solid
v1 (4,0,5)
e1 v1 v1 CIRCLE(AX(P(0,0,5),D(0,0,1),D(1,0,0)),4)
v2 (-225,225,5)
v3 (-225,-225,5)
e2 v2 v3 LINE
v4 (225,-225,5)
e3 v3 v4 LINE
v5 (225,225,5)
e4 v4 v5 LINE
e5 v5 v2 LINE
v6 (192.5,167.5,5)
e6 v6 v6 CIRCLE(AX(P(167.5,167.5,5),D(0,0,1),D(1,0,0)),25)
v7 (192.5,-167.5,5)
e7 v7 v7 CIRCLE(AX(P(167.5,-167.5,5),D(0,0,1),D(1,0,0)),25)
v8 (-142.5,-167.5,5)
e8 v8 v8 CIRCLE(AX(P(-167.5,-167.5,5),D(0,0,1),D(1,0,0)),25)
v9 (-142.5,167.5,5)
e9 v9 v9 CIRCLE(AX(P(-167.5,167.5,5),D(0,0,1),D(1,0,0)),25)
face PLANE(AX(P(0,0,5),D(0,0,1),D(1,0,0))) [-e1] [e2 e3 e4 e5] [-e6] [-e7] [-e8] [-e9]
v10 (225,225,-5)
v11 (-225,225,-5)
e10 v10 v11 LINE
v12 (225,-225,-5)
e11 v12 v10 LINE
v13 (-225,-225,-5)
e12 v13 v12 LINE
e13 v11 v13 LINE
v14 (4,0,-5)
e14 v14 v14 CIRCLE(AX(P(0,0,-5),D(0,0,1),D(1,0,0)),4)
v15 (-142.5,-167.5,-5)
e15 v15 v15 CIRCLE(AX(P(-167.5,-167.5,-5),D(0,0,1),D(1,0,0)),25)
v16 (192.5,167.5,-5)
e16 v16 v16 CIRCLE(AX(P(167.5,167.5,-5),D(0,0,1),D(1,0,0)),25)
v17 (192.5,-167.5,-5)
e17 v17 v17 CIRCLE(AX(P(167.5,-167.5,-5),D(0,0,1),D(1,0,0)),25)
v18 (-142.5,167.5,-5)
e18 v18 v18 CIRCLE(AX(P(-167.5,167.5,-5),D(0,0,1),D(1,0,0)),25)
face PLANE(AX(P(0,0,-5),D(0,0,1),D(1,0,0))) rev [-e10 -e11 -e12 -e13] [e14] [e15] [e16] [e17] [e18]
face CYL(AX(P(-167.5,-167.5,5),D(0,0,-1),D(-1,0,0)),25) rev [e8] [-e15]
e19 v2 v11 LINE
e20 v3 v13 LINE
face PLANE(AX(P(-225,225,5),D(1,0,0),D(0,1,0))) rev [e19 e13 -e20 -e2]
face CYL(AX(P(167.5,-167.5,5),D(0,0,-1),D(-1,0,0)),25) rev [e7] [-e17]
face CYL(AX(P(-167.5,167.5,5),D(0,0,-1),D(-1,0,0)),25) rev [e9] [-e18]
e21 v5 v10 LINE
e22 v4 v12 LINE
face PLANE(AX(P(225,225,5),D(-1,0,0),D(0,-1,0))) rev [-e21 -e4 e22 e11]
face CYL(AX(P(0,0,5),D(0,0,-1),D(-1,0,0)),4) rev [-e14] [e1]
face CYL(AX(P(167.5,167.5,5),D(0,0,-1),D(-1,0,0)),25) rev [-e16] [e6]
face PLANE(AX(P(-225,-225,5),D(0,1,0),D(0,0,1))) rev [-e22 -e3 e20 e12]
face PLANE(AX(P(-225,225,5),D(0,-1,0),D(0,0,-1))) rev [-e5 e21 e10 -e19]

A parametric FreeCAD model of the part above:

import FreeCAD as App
import Part
import Sketcher

doc = App.newDocument("Part")
body = doc.addObject("PartDesign::Body", "Body")

# Sketch on XY plane
sketch1 = body.newObject("Sketcher::SketchObject", "Sketch")
sketch1.AttachmentSupport = (doc.getObject("XY_Plane"), [""])
sketch1.MapMode = "FlatFace"
sketch1.addGeometry(Part.LineSegment(App.Vector(-225, 225, 0), App.Vector(-225, -225, 0)), False)
sketch1.addGeometry(Part.LineSegment(App.Vector(-225, -225, 0), App.Vector(225, -225, 0)), False)
sketch1.addGeometry(Part.LineSegment(App.Vector(225, -225, 0), App.Vector(225, 225, 0)), False)
sketch1.addGeometry(Part.LineSegment(App.Vector(225, 225, 0), App.Vector(-225, 225, 0)), False)
sketch1.addGeometry(Part.Circle(App.Vector(-167.5, -167.5, 0), App.Vector(0, 0, 1), 25), False)
sketch1.addGeometry(Part.Circle(App.Vector(167.5, -167.5, 0), App.Vector(0, 0, 1), 25), False)
sketch1.addGeometry(Part.Circle(App.Vector(-167.5, 167.5, 0), App.Vector(0, 0, 1), 25), False)
sketch1.addGeometry(Part.Circle(App.Vector(0, 0, 0), App.Vector(0, 0, 1), 4), False)
sketch1.addGeometry(Part.Circle(App.Vector(167.5, 167.5, 0), App.Vector(0, 0, 1), 25), False)
sketch1.addConstraint(Sketcher.Constraint("Coincident", 0, 2, 1, 1))
sketch1.addConstraint(Sketcher.Constraint("Coincident", 1, 2, 2, 1))
sketch1.addConstraint(Sketcher.Constraint("Coincident", 2, 2, 3, 1))
sketch1.addConstraint(Sketcher.Constraint("Coincident", 3, 2, 0, 1))
sketch1.addConstraint(Sketcher.Constraint("Vertical", 0))
sketch1.addConstraint(Sketcher.Constraint("Horizontal", 1))
sketch1.addConstraint(Sketcher.Constraint("Vertical", 2))
sketch1.addConstraint(Sketcher.Constraint("Horizontal", 3))
sketch1.addConstraint(Sketcher.Constraint("Coincident", 7, 3, -1, 1))
sketch1.addConstraint(Sketcher.Constraint("Equal", 4, 5))
sketch1.addConstraint(Sketcher.Constraint("Equal", 5, 6))
sketch1.addConstraint(Sketcher.Constraint("Equal", 6, 8))
sketch1.addConstraint(Sketcher.Constraint("Symmetric", 5, 3, 6, 3, -1, 1))
sketch1.addConstraint(Sketcher.Constraint("Symmetric", 4, 3, 8, 3, -1, 1))
sketch1.addConstraint(Sketcher.Constraint("Symmetric", 0, 2, 2, 2, -1, 1))
sketch1.addConstraint(Sketcher.Constraint("Symmetric", 4, 3, 5, 3, -2))
sketch1.addConstraint(Sketcher.Constraint("Equal", 3, 0))
sketch1.addConstraint(Sketcher.Constraint("Diameter", 4, 50.0))
sketch1.addConstraint(Sketcher.Constraint("Diameter", 7, 8.0))
sketch1.addConstraint(Sketcher.Constraint("DistanceX", 1, 1, 1, 2, 450.0))
sketch1.addConstraint(Sketcher.Constraint("DistanceX", 4, 3, 5, 3, 335.0))
sketch1.addConstraint(Sketcher.Constraint("DistanceY", 4, 3, 6, 3, 335.0))
pad1 = body.newObject("PartDesign::Pad", "Pad")
pad1.Profile = sketch1
pad1.Length = 10
pad1.Midplane = True

doc.recompute()
